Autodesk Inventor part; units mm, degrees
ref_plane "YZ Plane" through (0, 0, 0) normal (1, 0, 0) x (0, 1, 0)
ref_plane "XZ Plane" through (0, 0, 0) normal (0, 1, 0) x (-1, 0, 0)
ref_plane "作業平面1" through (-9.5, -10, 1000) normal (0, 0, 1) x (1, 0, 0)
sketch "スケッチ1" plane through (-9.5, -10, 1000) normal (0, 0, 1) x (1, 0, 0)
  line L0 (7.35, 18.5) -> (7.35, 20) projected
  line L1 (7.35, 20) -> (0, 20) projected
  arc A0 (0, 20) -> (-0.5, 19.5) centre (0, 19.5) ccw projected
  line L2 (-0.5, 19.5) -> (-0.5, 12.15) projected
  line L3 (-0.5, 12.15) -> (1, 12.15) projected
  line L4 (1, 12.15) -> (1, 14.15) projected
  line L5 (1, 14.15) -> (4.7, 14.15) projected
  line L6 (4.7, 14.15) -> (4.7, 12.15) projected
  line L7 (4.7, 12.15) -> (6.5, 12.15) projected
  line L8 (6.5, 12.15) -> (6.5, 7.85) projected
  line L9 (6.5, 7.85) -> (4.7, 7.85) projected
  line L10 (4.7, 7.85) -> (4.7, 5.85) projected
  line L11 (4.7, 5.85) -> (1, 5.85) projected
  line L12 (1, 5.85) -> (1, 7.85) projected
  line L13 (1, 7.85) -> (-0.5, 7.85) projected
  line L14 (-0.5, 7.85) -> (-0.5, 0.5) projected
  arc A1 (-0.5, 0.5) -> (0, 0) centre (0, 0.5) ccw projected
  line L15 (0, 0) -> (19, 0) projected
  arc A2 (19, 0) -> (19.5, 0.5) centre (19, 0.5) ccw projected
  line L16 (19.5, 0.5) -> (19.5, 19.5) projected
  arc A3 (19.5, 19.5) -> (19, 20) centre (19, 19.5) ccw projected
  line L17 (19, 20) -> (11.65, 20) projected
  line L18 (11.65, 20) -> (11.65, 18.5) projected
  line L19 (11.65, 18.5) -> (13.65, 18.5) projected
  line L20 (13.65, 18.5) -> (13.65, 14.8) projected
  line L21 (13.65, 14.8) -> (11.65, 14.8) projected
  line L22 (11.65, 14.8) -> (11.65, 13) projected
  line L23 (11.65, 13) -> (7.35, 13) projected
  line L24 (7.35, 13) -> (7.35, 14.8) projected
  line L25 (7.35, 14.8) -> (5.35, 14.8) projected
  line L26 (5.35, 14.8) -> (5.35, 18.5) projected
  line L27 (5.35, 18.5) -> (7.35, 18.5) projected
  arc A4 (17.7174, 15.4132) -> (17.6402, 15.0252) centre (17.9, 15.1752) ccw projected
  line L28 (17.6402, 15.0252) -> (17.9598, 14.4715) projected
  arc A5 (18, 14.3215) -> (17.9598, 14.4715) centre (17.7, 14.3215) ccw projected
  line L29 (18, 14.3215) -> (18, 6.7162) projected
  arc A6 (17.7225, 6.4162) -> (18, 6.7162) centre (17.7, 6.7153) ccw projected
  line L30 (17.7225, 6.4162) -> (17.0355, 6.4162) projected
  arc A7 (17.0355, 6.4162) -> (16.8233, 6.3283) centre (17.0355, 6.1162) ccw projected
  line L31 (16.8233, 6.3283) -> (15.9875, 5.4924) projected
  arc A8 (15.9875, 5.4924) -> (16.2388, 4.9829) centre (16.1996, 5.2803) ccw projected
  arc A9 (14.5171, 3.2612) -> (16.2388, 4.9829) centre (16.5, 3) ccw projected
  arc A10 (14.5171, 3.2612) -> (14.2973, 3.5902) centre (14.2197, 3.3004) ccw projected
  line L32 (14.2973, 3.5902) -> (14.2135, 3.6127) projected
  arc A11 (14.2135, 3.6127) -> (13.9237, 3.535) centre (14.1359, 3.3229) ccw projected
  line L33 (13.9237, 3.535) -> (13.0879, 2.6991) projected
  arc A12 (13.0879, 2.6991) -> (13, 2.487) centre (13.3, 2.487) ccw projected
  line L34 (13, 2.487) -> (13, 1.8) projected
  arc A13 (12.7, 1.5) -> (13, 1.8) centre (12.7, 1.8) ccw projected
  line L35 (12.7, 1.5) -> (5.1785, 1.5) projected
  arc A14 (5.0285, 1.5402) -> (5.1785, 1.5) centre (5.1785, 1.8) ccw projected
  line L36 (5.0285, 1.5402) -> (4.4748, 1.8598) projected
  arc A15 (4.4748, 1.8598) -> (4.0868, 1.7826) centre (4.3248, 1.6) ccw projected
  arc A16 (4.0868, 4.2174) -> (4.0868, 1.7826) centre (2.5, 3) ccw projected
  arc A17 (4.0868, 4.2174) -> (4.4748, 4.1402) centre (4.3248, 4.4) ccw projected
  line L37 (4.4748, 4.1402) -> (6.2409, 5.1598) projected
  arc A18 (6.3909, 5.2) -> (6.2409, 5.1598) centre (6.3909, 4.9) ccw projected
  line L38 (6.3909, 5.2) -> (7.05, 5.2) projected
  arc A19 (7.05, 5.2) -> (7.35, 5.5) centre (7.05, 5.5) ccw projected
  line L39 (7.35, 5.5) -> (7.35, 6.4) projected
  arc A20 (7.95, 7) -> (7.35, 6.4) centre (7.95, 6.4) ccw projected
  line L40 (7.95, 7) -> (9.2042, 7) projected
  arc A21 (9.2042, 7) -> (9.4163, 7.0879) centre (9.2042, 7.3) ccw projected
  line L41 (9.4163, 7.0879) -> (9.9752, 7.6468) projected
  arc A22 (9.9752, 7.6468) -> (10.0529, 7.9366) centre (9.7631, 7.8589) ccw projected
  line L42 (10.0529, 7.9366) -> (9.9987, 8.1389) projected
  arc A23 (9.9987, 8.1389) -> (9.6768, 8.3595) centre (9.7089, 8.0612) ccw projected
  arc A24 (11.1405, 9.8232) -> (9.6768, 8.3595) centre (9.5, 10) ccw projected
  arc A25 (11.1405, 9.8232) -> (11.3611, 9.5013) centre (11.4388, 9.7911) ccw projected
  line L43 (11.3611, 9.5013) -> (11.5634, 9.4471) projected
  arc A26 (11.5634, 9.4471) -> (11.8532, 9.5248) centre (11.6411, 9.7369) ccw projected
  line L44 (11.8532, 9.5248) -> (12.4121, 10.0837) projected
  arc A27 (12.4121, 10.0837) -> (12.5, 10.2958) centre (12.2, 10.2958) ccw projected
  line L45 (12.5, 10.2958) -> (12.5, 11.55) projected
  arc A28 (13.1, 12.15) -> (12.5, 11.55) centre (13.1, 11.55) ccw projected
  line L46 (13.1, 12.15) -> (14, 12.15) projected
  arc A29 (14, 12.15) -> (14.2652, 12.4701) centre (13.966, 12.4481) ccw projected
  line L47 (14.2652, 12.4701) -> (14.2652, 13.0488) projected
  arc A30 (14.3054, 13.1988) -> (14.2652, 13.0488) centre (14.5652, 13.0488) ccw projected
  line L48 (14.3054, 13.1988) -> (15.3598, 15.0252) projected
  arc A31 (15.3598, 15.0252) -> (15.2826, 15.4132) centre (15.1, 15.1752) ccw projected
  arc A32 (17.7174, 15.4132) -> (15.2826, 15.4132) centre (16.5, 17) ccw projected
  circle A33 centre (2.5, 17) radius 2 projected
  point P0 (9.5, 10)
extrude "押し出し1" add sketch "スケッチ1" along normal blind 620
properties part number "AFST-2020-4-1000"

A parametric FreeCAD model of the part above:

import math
import FreeCAD as App
import Part
import Sketcher

V = App.Vector
Q = App.Units.Quantity

doc = App.newDocument("Part")
body = doc.addObject("PartDesign::Body", "Body")

sketch1 = doc.addObject("Sketcher::SketchObject", "Sketch")
body.addObject(sketch1)
sketch1.AttachmentSupport = (doc.XY_Plane, [""])
sketch1.MapMode = "FlatFace"
sketch1.AttachmentOffset = App.Placement(V(0, 0, 1000), App.Rotation())
sketch1.addGeometry([
    Part.LineSegment(V(-4.15, 8.5, 0), V(-2.15, 8.5, 0)),
    Part.LineSegment(V(-2.15, 8.5, 0), V(-2.15, 10, 0)),
    Part.LineSegment(V(-2.15, 10, 0), V(-9.5, 10, 0)),
    Part.ArcOfCircle(Part.Circle(V(-9.5, 9.5, 0), V(0, 0, 1), 0.5), math.radians(90), math.radians(180)),
    Part.LineSegment(V(-10, 9.5, 0), V(-10, 2.15, 0)),
    Part.LineSegment(V(-10, 2.15, 0), V(-8.5, 2.15, 0)),
    Part.LineSegment(V(-8.5, 2.15, 0), V(-8.5, 4.15, 0)),
    Part.LineSegment(V(-8.5, 4.15, 0), V(-4.8, 4.15, 0)),
    Part.LineSegment(V(-4.8, 4.15, 0), V(-4.8, 2.15, 0)),
    Part.LineSegment(V(-4.8, 2.15, 0), V(-3, 2.15, 0)),
    Part.LineSegment(V(-3, 2.15, 0), V(-3, -2.15, 0)),
    Part.LineSegment(V(-3, -2.15, 0), V(-4.8, -2.15, 0)),
    Part.LineSegment(V(-4.8, -2.15, 0), V(-4.8, -4.15, 0)),
    Part.LineSegment(V(-4.8, -4.15, 0), V(-8.5, -4.15, 0)),
    Part.LineSegment(V(-8.5, -4.15, 0), V(-8.5, -2.15, 0)),
    Part.LineSegment(V(-8.5, -2.15, 0), V(-10, -2.15, 0)),
    Part.LineSegment(V(-10, -2.15, 0), V(-10, -9.5, 0)),
    Part.ArcOfCircle(Part.Circle(V(-9.5, -9.5, 0), V(0, 0, 1), 0.5), math.radians(180), math.radians(270)),
    Part.LineSegment(V(-9.5, -10, 0), V(9.5, -10, 0)),
    Part.ArcOfCircle(Part.Circle(V(9.5, -9.5, 0), V(0, 0, 1), 0.5), math.radians(-90), math.radians(0)),
    Part.LineSegment(V(10, -9.5, 0), V(10, 9.5, 0)),
    Part.ArcOfCircle(Part.Circle(V(9.5, 9.5, 0), V(0, 0, 1), 0.5), math.radians(0), math.radians(90)),
    Part.LineSegment(V(9.5, 10, 0), V(2.15, 10, 0)),
    Part.LineSegment(V(2.15, 10, 0), V(2.15, 8.5, 0)),
    Part.LineSegment(V(2.15, 8.5, 0), V(4.15, 8.5, 0)),
    Part.LineSegment(V(4.15, 8.5, 0), V(4.15, 4.8, 0)),
    Part.LineSegment(V(4.15, 4.8, 0), V(2.15, 4.8, 0)),
    Part.LineSegment(V(2.15, 4.8, 0), V(2.15, 3, 0)),
    Part.LineSegment(V(2.15, 3, 0), V(-2.15, 3, 0)),
    Part.LineSegment(V(-2.15, 3, 0), V(-2.15, 4.8, 0)),
    Part.LineSegment(V(-2.15, 4.8, 0), V(-4.15, 4.8, 0)),
    Part.LineSegment(V(-4.15, 4.8, 0), V(-4.15, 8.5, 0)),
    Part.ArcOfCircle(Part.Circle(V(7, 7, 0), V(0, 0, 1), 1.999999), math.radians(-52.50442), math.radians(232.50442)),
    Part.ArcOfCircle(Part.Circle(V(8.4, 5.1752, 0), V(0, 0, 1), 0.299978), math.radians(127.49639), math.radians(210.000728)),
    Part.LineSegment(V(8.1402, 5.0252, 0), V(8.4598, 4.4715, 0)),
    Part.ArcOfCircle(Part.Circle(V(8.2, 4.3215, 0), V(0, 0, 1), 0.3), math.radians(0), math.radians(30.000728)),
    Part.LineSegment(V(8.5, 4.3215, 0), V(8.5, -3.2838, 0)),
    Part.ArcOfCircle(Part.Circle(V(8.2, -3.2847, 0), V(0, 0, 1), 0.299945), math.radians(-85.697989), math.radians(0.171887)),
    Part.LineSegment(V(8.2225, -3.5838, 0), V(7.5355, -3.5838, 0)),
    Part.ArcOfCircle(Part.Circle(V(7.5355, -3.8838, 0), V(0, 0, 1), 0.3), math.radians(90), math.radians(135.013504)),
    Part.LineSegment(V(7.3233, -3.6717, 0), V(6.4875, -4.5076, 0)),
    Part.ArcOfCircle(Part.Circle(V(6.6996, -4.7197, 0), V(0, 0, 1), 0.299955), math.radians(135), math.radians(277.508815)),
    Part.ArcOfCircle(Part.Circle(V(7, -7, 0), V(0, 0, 1), 2.000029), math.radians(172.495846), math.radians(457.504154)),
    Part.ArcOfCircle(Part.Circle(V(4.7197, -6.6996, 0), V(0, 0, 1), 0.299972), math.radians(-7.508815), math.radians(75.009533)),
    Part.LineSegment(V(4.7973, -6.4098, 0), V(4.7135, -6.3873, 0)),
    Part.ArcOfCircle(Part.Circle(V(4.6359, -6.6771, 0), V(0, 0, 1), 0.30001), math.radians(75.009533), math.radians(135.013504)),
    Part.LineSegment(V(4.4237, -6.465, 0), V(3.5879, -7.3009, 0)),
    Part.ArcOfCircle(Part.Circle(V(3.8, -7.513, 0), V(0, 0, 1), 0.299955), math.radians(135), math.radians(180)),
    Part.LineSegment(V(3.5, -7.513, 0), V(3.5, -8.2, 0)),
    Part.ArcOfCircle(Part.Circle(V(3.2, -8.2, 0), V(0, 0, 1), 0.3), math.radians(-90), math.radians(0)),
    Part.LineSegment(V(3.2, -8.5, 0), V(-4.3215, -8.5, 0)),
    Part.ArcOfCircle(Part.Circle(V(-4.3215, -8.2, 0), V(0, 0, 1), 0.299993), math.radians(-120.000728), math.radians(-90)),
    Part.LineSegment(V(-4.4715, -8.4598, 0), V(-5.0252, -8.1402, 0)),
    Part.ArcOfCircle(Part.Circle(V(-5.1752, -8.4, 0), V(0, 0, 1), 0.299993), math.radians(59.999272), math.radians(142.50361)),
    Part.ArcOfCircle(Part.Circle(V(-7, -7, 0), V(0, 0, 1), 1.999999), math.radians(37.49558), math.radians(322.50442)),
    Part.ArcOfCircle(Part.Circle(V(-5.1752, -5.6, 0), V(0, 0, 1), 0.299978), math.radians(-142.50361), math.radians(-59.999272)),
    Part.LineSegment(V(-5.0252, -5.8598, 0), V(-3.2591, -4.8402, 0)),
    Part.ArcOfCircle(Part.Circle(V(-3.1091, -5.1, 0), V(0, 0, 1), 0.3), math.radians(90), math.radians(120.000728)),
    Part.LineSegment(V(-3.1091, -4.8, 0), V(-2.45, -4.8, 0)),
    Part.ArcOfCircle(Part.Circle(V(-2.45, -4.5, 0), V(0, 0, 1), 0.3), math.radians(-90), math.radians(0)),
    Part.LineSegment(V(-2.15, -4.5, 0), V(-2.15, -3.6, 0)),
    Part.ArcOfCircle(Part.Circle(V(-1.55, -3.6, 0), V(0, 0, 1), 0.6), math.radians(90), math.radians(180)),
    Part.LineSegment(V(-1.55, -3, 0), V(-0.2958, -3, 0)),
    Part.ArcOfCircle(Part.Circle(V(-0.2958, -2.7, 0), V(0, 0, 1), 0.3), math.radians(-90), math.radians(-45)),
    Part.LineSegment(V(-0.0837, -2.9121, 0), V(0.4752, -2.3532, 0)),
    Part.ArcOfCircle(Part.Circle(V(0.2631, -2.1411, 0), V(0, 0, 1), 0.299955), math.radians(-45), math.radians(15.008914)),
    Part.LineSegment(V(0.5529, -2.0634, 0), V(0.4987, -1.8611, 0)),
    Part.ArcOfCircle(Part.Circle(V(0.2089, -1.9388, 0), V(0, 0, 1), 0.300036), math.radians(15.008914), math.radians(96.141952)),
    Part.ArcOfCircle(Part.Circle(V(0, 0, 0), V(0, 0, 1), 1.65), math.radians(-6.15114), math.radians(276.15114)),
    Part.ArcOfCircle(Part.Circle(V(1.9388, -0.2089, 0), V(0, 0, 1), 0.300022), math.radians(173.858048), math.radians(254.991086)),
    Part.LineSegment(V(1.8611, -0.4987, 0), V(2.0634, -0.5529, 0)),
    Part.ArcOfCircle(Part.Circle(V(2.1411, -0.2631, 0), V(0, 0, 1), 0.300036), math.radians(-105.008914), math.radians(-45)),
    Part.LineSegment(V(2.3532, -0.4752, 0), V(2.9121, 0.0837, 0)),
    Part.ArcOfCircle(Part.Circle(V(2.7, 0.2958, 0), V(0, 0, 1), 0.299955), math.radians(-45), math.radians(0)),
    Part.LineSegment(V(3, 0.2958, 0), V(3, 1.55, 0)),
    Part.ArcOfCircle(Part.Circle(V(3.6, 1.55, 0), V(0, 0, 1), 0.6), math.radians(90), math.radians(180)),
    Part.LineSegment(V(3.6, 2.15, 0), V(4.5, 2.15, 0)),
    Part.ArcOfCircle(Part.Circle(V(4.466, 2.4481, 0), V(0, 0, 1), 0.300033), math.radians(-83.493208), math.radians(4.205357)),
    Part.LineSegment(V(4.7652, 2.4701, 0), V(4.7652, 3.0488, 0)),
    Part.ArcOfCircle(Part.Circle(V(5.0652, 3.0488, 0), V(0, 0, 1), 0.299993), math.radians(149.999272), math.radians(180)),
    Part.LineSegment(V(4.8054, 3.1988, 0), V(5.8598, 5.0252, 0)),
    Part.ArcOfCircle(Part.Circle(V(5.6, 5.1752, 0), V(0, 0, 1), 0.299993), math.radians(-30.000728), math.radians(52.50361)),
    Part.Circle(V(-7, 7, 0), V(0, 0, 1), 2),
], False)
sketch1.addConstraint([
    Sketcher.Constraint("Coincident", 0, 2, 1, 1),
    Sketcher.Constraint("Coincident", 1, 2, 2, 1),
    Sketcher.Constraint("Tangent", 2, 2, 3, 1),
    Sketcher.Constraint("Tangent", 3, 2, 4, 1),
    Sketcher.Constraint("Coincident", 4, 2, 5, 1),
    Sketcher.Constraint("Coincident", 5, 2, 6, 1),
    Sketcher.Constraint("Coincident", 6, 2, 7, 1),
    Sketcher.Constraint("Coincident", 7, 2, 8, 1),
    Sketcher.Constraint("Coincident", 8, 2, 9, 1),
    Sketcher.Constraint("Coincident", 9, 2, 10, 1),
    Sketcher.Constraint("Coincident", 10, 2, 11, 1),
    Sketcher.Constraint("Coincident", 11, 2, 12, 1),
    Sketcher.Constraint("Coincident", 12, 2, 13, 1),
    Sketcher.Constraint("Coincident", 13, 2, 14, 1),
    Sketcher.Constraint("Coincident", 14, 2, 15, 1),
    Sketcher.Constraint("Coincident", 15, 2, 16, 1),
    Sketcher.Constraint("Tangent", 16, 2, 17, 1),
    Sketcher.Constraint("Tangent", 17, 2, 18, 1),
    Sketcher.Constraint("Tangent", 18, 2, 19, 1),
    Sketcher.Constraint("Tangent", 19, 2, 20, 1),
    Sketcher.Constraint("Tangent", 20, 2, 21, 1),
    Sketcher.Constraint("Tangent", 21, 2, 22, 1),
    Sketcher.Constraint("Coincident", 22, 2, 23, 1),
    Sketcher.Constraint("Coincident", 23, 2, 24, 1),
    Sketcher.Constraint("Coincident", 24, 2, 25, 1),
    Sketcher.Constraint("Coincident", 25, 2, 26, 1),
    Sketcher.Constraint("Coincident", 26, 2, 27, 1),
    Sketcher.Constraint("Coincident", 27, 2, 28, 1),
    Sketcher.Constraint("Coincident", 28, 2, 29, 1),
    Sketcher.Constraint("Coincident", 29, 2, 30, 1),
    Sketcher.Constraint("Coincident", 30, 2, 31, 1),
    Sketcher.Constraint("Coincident", 31, 2, 0, 1),
    Sketcher.Constraint("Tangent", 32, 1, 33, 1),
    Sketcher.Constraint("Tangent", 33, 2, 34, 1),
    Sketcher.Constraint("Tangent", 34, 2, 35, 2),
    Sketcher.Constraint("Tangent", 35, 1, 36, 1),
    Sketcher.Constraint("Coincident", 36, 2, 37, 2),
    Sketcher.Constraint("Coincident", 37, 1, 38, 1),
    Sketcher.Constraint("Tangent", 38, 2, 39, 1),
    Sketcher.Constraint("Tangent", 39, 2, 40, 1),
    Sketcher.Constraint("Tangent", 40, 2, 41, 1),
    Sketcher.Constraint("Tangent", 41, 2, 42, 2),
    Sketcher.Constraint("Tangent", 42, 1, 43, 1),
    Sketcher.Constraint("Coincident", 43, 2, 44, 1),
    Sketcher.Constraint("Coincident", 44, 2, 45, 1),
    Sketcher.Constraint("Tangent", 45, 2, 46, 1),
    Sketcher.Constraint("Tangent", 46, 2, 47, 1),
    Sketcher.Constraint("Tangent", 47, 2, 48, 1),
    Sketcher.Constraint("Tangent", 48, 2, 49, 2),
    Sketcher.Constraint("Tangent", 49, 1, 50, 1),
    Sketcher.Constraint("Tangent", 50, 2, 51, 2),
    Sketcher.Constraint("Tangent", 51, 1, 52, 1),
    Sketcher.Constraint("Tangent", 52, 2, 53, 1),
    Sketcher.Constraint("Tangent", 53, 2, 54, 2),
    Sketcher.Constraint("Tangent", 54, 1, 55, 1),
    Sketcher.Constraint("Tangent", 55, 2, 56, 1),
    Sketcher.Constraint("Tangent", 56, 2, 57, 2),
    Sketcher.Constraint("Tangent", 57, 1, 58, 1),
    Sketcher.Constraint("Tangent", 58, 2, 59, 1),
    Sketcher.Constraint("Tangent", 59, 2, 60, 1),
    Sketcher.Constraint("Tangent", 60, 2, 61, 2),
    Sketcher.Constraint("Tangent", 61, 1, 62, 1),
    Sketcher.Constraint("Tangent", 62, 2, 63, 1),
    Sketcher.Constraint("Tangent", 63, 2, 64, 1),
    Sketcher.Constraint("Tangent", 64, 2, 65, 1),
    Sketcher.Constraint("Tangent", 65, 2, 66, 1),
    Sketcher.Constraint("Tangent", 66, 2, 67, 1),
    Sketcher.Constraint("Tangent", 67, 2, 68, 2),
    Sketcher.Constraint("Tangent", 68, 1, 69, 1),
    Sketcher.Constraint("Tangent", 69, 2, 70, 1),
    Sketcher.Constraint("Tangent", 70, 2, 71, 1),
    Sketcher.Constraint("Tangent", 71, 2, 72, 1),
    Sketcher.Constraint("Tangent", 72, 2, 73, 1),
    Sketcher.Constraint("Tangent", 73, 2, 74, 1),
    Sketcher.Constraint("Tangent", 74, 2, 75, 2),
    Sketcher.Constraint("Tangent", 75, 1, 76, 1),
    Sketcher.Constraint("Coincident", 76, 2, 77, 1),
    Sketcher.Constraint("Coincident", 77, 2, 78, 1),
    Sketcher.Constraint("Tangent", 78, 2, 79, 2),
    Sketcher.Constraint("Tangent", 79, 1, 80, 1),
    Sketcher.Constraint("Tangent", 80, 2, 81, 1),
    Sketcher.Constraint("Tangent", 81, 2, 32, 2),
    Sketcher.Constraint("Horizontal", 0),
    Sketcher.Constraint("Vertical", 1),
    Sketcher.Constraint("Horizontal", 2),
    Sketcher.Constraint("Vertical", 4),
    Sketcher.Constraint("Horizontal", 5),
    Sketcher.Constraint("Vertical", 6),
    Sketcher.Constraint("Horizontal", 7),
    Sketcher.Constraint("Vertical", 8),
    Sketcher.Constraint("Horizontal", 9),
    Sketcher.Constraint("Vertical", 10),
    Sketcher.Constraint("Horizontal", 11),
    Sketcher.Constraint("Vertical", 12),
    Sketcher.Constraint("Horizontal", 13),
    Sketcher.Constraint("Vertical", 14),
    Sketcher.Constraint("Horizontal", 15),
    Sketcher.Constraint("Vertical", 16),
    Sketcher.Constraint("Horizontal", 18),
    Sketcher.Constraint("Vertical", 20),
    Sketcher.Constraint("Horizontal", 22),
    Sketcher.Constraint("Vertical", 23),
    Sketcher.Constraint("Horizontal", 24),
    Sketcher.Constraint("Vertical", 25),
    Sketcher.Constraint("Horizontal", 26),
    Sketcher.Constraint("Vertical", 27),
    Sketcher.Constraint("Horizontal", 28),
    Sketcher.Constraint("Vertical", 29),
    Sketcher.Constraint("Horizontal", 30),
    Sketcher.Constraint("Vertical", 31),
    Sketcher.Constraint("Vertical", 36),
    Sketcher.Constraint("Horizontal", 38),
    Sketcher.Constraint("Vertical", 48),
    Sketcher.Constraint("Horizontal", 50),
    Sketcher.Constraint("Horizontal", 58),
    Sketcher.Constraint("Vertical", 60),
    Sketcher.Constraint("Horizontal", 62),
    Sketcher.Constraint("Vertical", 74),
    Sketcher.Constraint("Horizontal", 76),
    Sketcher.Constraint("Vertical", 78),
    Sketcher.Constraint("Coincident", 68, 3, -1, 1),
    Sketcher.Constraint("Equal", 3, 17),
    Sketcher.Constraint("Equal", 17, 19),
    Sketcher.Constraint("Equal", 19, 21),
    Sketcher.Constraint("Equal", 33, 35),
    Sketcher.Constraint("Equal", 35, 37),
    Sketcher.Constraint("Equal", 37, 39),
    Sketcher.Constraint("Equal", 39, 41),
    Sketcher.Constraint("Equal", 32, 42),
    Sketcher.Constraint("Equal", 41, 43),
    Sketcher.Constraint("Equal", 43, 45),
    Sketcher.Constraint("Equal", 45, 47),
    Sketcher.Constraint("Equal", 47, 49),
    Sketcher.Constraint("Equal", 49, 51),
    Sketcher.Constraint("Equal", 51, 53),
    Sketcher.Constraint("Equal", 42, 54),
    Sketcher.Constraint("Equal", 53, 55),
    Sketcher.Constraint("Equal", 55, 57),
    Sketcher.Constraint("Equal", 57, 59),
    Sketcher.Constraint("Equal", 59, 63),
    Sketcher.Constraint("Equal", 63, 65),
    Sketcher.Constraint("Equal", 65, 67),
    Sketcher.Constraint("Equal", 67, 69),
    Sketcher.Constraint("Equal", 69, 71),
    Sketcher.Constraint("Equal", 71, 73),
    Sketcher.Constraint("Equal", 61, 75),
    Sketcher.Constraint("Equal", 73, 77),
    Sketcher.Constraint("Equal", 77, 79),
    Sketcher.Constraint("Equal", 79, 81),
    Sketcher.Constraint("Equal", 54, 82),
    Sketcher.Constraint("Symmetric", 3, 3, 19, 3, -1, 1),
    Sketcher.Constraint("Symmetric", 17, 3, 21, 3, -1, 1),
    Sketcher.Constraint("Symmetric", 32, 3, 54, 3, -1, 1),
    Sketcher.Constraint("Symmetric", 42, 3, 82, 3, -1, 1),
    Sketcher.Constraint("Symmetric", 42, 3, 54, 3, -2),
    Sketcher.Constraint("Symmetric", 0, 2, 23, 2, -2),
    Sketcher.Constraint("Symmetric", 26, 2, 29, 2, -2),
    Sketcher.Constraint("Symmetric", 8, 2, 11, 2, -1),
    Sketcher.Constraint("Symmetric", 6, 2, 13, 2, -1),
    Sketcher.Constraint("Parallel", 40, 46),
    Sketcher.Constraint("Perpendicular", 34, 56),
    Sketcher.Constraint("Parallel", 46, 64),
    Sketcher.Constraint("Parallel", 64, 72),
    Sketcher.Constraint("Perpendicular", 52, 80),
    Sketcher.Constraint("Horizontal", 33, 3, 81, 3),
    Sketcher.Constraint("Horizontal", 5, 2, 8, 2),
    Sketcher.Constraint("Horizontal", 11, 2, 14, 2),
    Sketcher.Constraint("Horizontal", 9, 2, 75, 1),
    Sketcher.Constraint("Horizontal", 33, 2, 80, 2),
    Sketcher.Constraint("Vertical", 53, 3, 55, 3),
    Sketcher.Constraint("Vertical", 23, 2, 26, 2),
    Sketcher.Constraint("Vertical", 29, 2, 59, 2),
    Sketcher.Constraint("Equal", 0, 24),
    Sketcher.Constraint("Equal", 15, 1),
    Sketcher.Constraint("Equal", 22, 4),
    Sketcher.Constraint("Equal", 30, 6),
    Sketcher.Constraint("Equal", 28, 10),
    Sketcher.Constraint("Equal", 13, 25),
    Sketcher.Constraint("Equal", 11, 27),
    Sketcher.Constraint("Equal", 38, 48),
    Sketcher.Constraint("Equal", 76, 60),
    Sketcher.Constraint("Equal", 62, 74),
    Sketcher.Constraint("Equal", 40, 46),
    Sketcher.Constraint("Equal", 34, 52),
    Sketcher.Constraint("Equal", 66, 70),
    Sketcher.Constraint("Equal", 64, 72),
    Sketcher.Constraint("Diameter", 82, Q("4 mm")),
    Sketcher.Constraint("Radius", 3, Q("0.5 mm")),
    Sketcher.Constraint("Radius", 33, Q("0.3 mm")),
    Sketcher.Constraint("Radius", 61, Q("0.6 mm")),
    Sketcher.Constraint("DistanceX", 0, 1, 0, 2, Q("2 mm")),
    Sketcher.Constraint("DistanceX", 18, 1, 18, 2, Q("19 mm")),
    Sketcher.Constraint("Angle", 64, Q("45 deg")),
    Sketcher.Constraint("Radius", 68, Q("1.65 mm")),
    Sketcher.Constraint("DistanceX", 5, 1, 5, 2, Q("1.5 mm")),
    Sketcher.Constraint("DistanceX", 7, 1, 7, 2, Q("3.7 mm")),
    Sketcher.Constraint("DistanceX", 9, 1, 9, 2, Q("1.8 mm")),
    Sketcher.Constraint("DistanceX", 28, 2, 28, 1, Q("4.3 mm")),
    Sketcher.Constraint("DistanceX", 76, 1, 76, 2, Q("0.9 mm")),
    Sketcher.Constraint("DistanceX", -1, 1, 32, 3, Q("7 mm")),
    Sketcher.Constraint("DistanceY", -1, 1, 32, 3, Q("7 mm")),
    Sketcher.Constraint("DistanceY", 61, 1, -1, 1, Q("3 mm")),
    Sketcher.Constraint("DistanceX", -1, 1, 73, 2, Q("3 mm")),
    Sketcher.Constraint("DistanceX", -1, 1, 33, 3, Q("8.4 mm")),
    Sketcher.Constraint("DistanceX", -1, 1, 35, 3, Q("8.2 mm")),
    Sketcher.Constraint("DistanceX", -1, 1, 47, 3, Q("3.8 mm")),
    Sketcher.Constraint("DistanceY", 49, 3, -1, 1, Q("8.2 mm")),
    Sketcher.Constraint("Angle", 44, Q("164.9708 deg")),
    Sketcher.Constraint("DistanceX", 38, 2, 38, 1, Q("0.687 mm")),
    Sketcher.Constraint("DistanceX", 58, 1, 58, 2, Q("0.659 mm")),
    Sketcher.Constraint("DistanceY", -1, 1, 77, 2, Q("2.47 mm")),
    Sketcher.Constraint("Distance", 40, Q("1.182 mm")),
    Sketcher.Constraint("Distance", 80, Q("2.109 mm")),
    Sketcher.Constraint("DistanceX", 62, 1, 62, 2, Q("1.2542 mm")),
    Sketcher.Constraint("DistanceY", 36, 2, 36, 1, Q("7.6053 mm")),
    Sketcher.Constraint("DistanceX", -1, 1, 65, 3, Q("0.263 mm")),
    Sketcher.Constraint("DistanceX", -1, 1, 67, 3, Q("0.209 mm")),
    Sketcher.Constraint("DistanceY", 41, 2, -1, 1, Q("5.017 mm")),
    Sketcher.Constraint("Distance", 44, Q("0.0868 mm")),
    Sketcher.Constraint("DistanceX", -1, 1, 43, 2, Q("4.7973 mm")),
])
pad1 = doc.addObject("PartDesign::Pad", "Pad")
body.addObject(pad1)
pad1.Profile = sketch1
pad1.Length = 620

doc.recompute()
